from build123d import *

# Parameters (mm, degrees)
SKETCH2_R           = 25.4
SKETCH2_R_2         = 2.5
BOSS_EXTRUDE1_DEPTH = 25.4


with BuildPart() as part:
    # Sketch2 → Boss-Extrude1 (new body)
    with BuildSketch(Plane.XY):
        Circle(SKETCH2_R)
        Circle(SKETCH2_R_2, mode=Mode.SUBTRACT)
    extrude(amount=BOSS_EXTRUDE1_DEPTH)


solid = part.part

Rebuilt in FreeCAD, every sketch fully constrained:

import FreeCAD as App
import Part
import Sketcher
Q = App.Units.Quantity

doc = App.newDocument("Part")
body = doc.addObject("PartDesign::Body", "Body")

# Sketch on XY plane
sketch1 = body.newObject("Sketcher::SketchObject", "Sketch")
sketch1.AttachmentSupport = (doc.getObject("XY_Plane"), [""])
sketch1.MapMode = "FlatFace"
sketch1.addGeometry([
    Part.Circle(App.Vector(0, 0, 0), App.Vector(0, 0, 1), 25.4),
    Part.Circle(App.Vector(0, 0, 0), App.Vector(0, 0, 1), 2.5),
], False)
sketch1.addConstraint([
    Sketcher.Constraint("Coincident", 0, 3, -1, 1),
    Sketcher.Constraint("Coincident", 1, 3, -1, 1),
    Sketcher.Constraint("Diameter", 0, Q("2 in")),
    Sketcher.Constraint("Diameter", 1, 5.0),
])
pad1 = body.newObject("PartDesign::Pad", "Pad")
pad1.Profile = sketch1
pad1.Length = Q("1 in")

doc.recompute()
